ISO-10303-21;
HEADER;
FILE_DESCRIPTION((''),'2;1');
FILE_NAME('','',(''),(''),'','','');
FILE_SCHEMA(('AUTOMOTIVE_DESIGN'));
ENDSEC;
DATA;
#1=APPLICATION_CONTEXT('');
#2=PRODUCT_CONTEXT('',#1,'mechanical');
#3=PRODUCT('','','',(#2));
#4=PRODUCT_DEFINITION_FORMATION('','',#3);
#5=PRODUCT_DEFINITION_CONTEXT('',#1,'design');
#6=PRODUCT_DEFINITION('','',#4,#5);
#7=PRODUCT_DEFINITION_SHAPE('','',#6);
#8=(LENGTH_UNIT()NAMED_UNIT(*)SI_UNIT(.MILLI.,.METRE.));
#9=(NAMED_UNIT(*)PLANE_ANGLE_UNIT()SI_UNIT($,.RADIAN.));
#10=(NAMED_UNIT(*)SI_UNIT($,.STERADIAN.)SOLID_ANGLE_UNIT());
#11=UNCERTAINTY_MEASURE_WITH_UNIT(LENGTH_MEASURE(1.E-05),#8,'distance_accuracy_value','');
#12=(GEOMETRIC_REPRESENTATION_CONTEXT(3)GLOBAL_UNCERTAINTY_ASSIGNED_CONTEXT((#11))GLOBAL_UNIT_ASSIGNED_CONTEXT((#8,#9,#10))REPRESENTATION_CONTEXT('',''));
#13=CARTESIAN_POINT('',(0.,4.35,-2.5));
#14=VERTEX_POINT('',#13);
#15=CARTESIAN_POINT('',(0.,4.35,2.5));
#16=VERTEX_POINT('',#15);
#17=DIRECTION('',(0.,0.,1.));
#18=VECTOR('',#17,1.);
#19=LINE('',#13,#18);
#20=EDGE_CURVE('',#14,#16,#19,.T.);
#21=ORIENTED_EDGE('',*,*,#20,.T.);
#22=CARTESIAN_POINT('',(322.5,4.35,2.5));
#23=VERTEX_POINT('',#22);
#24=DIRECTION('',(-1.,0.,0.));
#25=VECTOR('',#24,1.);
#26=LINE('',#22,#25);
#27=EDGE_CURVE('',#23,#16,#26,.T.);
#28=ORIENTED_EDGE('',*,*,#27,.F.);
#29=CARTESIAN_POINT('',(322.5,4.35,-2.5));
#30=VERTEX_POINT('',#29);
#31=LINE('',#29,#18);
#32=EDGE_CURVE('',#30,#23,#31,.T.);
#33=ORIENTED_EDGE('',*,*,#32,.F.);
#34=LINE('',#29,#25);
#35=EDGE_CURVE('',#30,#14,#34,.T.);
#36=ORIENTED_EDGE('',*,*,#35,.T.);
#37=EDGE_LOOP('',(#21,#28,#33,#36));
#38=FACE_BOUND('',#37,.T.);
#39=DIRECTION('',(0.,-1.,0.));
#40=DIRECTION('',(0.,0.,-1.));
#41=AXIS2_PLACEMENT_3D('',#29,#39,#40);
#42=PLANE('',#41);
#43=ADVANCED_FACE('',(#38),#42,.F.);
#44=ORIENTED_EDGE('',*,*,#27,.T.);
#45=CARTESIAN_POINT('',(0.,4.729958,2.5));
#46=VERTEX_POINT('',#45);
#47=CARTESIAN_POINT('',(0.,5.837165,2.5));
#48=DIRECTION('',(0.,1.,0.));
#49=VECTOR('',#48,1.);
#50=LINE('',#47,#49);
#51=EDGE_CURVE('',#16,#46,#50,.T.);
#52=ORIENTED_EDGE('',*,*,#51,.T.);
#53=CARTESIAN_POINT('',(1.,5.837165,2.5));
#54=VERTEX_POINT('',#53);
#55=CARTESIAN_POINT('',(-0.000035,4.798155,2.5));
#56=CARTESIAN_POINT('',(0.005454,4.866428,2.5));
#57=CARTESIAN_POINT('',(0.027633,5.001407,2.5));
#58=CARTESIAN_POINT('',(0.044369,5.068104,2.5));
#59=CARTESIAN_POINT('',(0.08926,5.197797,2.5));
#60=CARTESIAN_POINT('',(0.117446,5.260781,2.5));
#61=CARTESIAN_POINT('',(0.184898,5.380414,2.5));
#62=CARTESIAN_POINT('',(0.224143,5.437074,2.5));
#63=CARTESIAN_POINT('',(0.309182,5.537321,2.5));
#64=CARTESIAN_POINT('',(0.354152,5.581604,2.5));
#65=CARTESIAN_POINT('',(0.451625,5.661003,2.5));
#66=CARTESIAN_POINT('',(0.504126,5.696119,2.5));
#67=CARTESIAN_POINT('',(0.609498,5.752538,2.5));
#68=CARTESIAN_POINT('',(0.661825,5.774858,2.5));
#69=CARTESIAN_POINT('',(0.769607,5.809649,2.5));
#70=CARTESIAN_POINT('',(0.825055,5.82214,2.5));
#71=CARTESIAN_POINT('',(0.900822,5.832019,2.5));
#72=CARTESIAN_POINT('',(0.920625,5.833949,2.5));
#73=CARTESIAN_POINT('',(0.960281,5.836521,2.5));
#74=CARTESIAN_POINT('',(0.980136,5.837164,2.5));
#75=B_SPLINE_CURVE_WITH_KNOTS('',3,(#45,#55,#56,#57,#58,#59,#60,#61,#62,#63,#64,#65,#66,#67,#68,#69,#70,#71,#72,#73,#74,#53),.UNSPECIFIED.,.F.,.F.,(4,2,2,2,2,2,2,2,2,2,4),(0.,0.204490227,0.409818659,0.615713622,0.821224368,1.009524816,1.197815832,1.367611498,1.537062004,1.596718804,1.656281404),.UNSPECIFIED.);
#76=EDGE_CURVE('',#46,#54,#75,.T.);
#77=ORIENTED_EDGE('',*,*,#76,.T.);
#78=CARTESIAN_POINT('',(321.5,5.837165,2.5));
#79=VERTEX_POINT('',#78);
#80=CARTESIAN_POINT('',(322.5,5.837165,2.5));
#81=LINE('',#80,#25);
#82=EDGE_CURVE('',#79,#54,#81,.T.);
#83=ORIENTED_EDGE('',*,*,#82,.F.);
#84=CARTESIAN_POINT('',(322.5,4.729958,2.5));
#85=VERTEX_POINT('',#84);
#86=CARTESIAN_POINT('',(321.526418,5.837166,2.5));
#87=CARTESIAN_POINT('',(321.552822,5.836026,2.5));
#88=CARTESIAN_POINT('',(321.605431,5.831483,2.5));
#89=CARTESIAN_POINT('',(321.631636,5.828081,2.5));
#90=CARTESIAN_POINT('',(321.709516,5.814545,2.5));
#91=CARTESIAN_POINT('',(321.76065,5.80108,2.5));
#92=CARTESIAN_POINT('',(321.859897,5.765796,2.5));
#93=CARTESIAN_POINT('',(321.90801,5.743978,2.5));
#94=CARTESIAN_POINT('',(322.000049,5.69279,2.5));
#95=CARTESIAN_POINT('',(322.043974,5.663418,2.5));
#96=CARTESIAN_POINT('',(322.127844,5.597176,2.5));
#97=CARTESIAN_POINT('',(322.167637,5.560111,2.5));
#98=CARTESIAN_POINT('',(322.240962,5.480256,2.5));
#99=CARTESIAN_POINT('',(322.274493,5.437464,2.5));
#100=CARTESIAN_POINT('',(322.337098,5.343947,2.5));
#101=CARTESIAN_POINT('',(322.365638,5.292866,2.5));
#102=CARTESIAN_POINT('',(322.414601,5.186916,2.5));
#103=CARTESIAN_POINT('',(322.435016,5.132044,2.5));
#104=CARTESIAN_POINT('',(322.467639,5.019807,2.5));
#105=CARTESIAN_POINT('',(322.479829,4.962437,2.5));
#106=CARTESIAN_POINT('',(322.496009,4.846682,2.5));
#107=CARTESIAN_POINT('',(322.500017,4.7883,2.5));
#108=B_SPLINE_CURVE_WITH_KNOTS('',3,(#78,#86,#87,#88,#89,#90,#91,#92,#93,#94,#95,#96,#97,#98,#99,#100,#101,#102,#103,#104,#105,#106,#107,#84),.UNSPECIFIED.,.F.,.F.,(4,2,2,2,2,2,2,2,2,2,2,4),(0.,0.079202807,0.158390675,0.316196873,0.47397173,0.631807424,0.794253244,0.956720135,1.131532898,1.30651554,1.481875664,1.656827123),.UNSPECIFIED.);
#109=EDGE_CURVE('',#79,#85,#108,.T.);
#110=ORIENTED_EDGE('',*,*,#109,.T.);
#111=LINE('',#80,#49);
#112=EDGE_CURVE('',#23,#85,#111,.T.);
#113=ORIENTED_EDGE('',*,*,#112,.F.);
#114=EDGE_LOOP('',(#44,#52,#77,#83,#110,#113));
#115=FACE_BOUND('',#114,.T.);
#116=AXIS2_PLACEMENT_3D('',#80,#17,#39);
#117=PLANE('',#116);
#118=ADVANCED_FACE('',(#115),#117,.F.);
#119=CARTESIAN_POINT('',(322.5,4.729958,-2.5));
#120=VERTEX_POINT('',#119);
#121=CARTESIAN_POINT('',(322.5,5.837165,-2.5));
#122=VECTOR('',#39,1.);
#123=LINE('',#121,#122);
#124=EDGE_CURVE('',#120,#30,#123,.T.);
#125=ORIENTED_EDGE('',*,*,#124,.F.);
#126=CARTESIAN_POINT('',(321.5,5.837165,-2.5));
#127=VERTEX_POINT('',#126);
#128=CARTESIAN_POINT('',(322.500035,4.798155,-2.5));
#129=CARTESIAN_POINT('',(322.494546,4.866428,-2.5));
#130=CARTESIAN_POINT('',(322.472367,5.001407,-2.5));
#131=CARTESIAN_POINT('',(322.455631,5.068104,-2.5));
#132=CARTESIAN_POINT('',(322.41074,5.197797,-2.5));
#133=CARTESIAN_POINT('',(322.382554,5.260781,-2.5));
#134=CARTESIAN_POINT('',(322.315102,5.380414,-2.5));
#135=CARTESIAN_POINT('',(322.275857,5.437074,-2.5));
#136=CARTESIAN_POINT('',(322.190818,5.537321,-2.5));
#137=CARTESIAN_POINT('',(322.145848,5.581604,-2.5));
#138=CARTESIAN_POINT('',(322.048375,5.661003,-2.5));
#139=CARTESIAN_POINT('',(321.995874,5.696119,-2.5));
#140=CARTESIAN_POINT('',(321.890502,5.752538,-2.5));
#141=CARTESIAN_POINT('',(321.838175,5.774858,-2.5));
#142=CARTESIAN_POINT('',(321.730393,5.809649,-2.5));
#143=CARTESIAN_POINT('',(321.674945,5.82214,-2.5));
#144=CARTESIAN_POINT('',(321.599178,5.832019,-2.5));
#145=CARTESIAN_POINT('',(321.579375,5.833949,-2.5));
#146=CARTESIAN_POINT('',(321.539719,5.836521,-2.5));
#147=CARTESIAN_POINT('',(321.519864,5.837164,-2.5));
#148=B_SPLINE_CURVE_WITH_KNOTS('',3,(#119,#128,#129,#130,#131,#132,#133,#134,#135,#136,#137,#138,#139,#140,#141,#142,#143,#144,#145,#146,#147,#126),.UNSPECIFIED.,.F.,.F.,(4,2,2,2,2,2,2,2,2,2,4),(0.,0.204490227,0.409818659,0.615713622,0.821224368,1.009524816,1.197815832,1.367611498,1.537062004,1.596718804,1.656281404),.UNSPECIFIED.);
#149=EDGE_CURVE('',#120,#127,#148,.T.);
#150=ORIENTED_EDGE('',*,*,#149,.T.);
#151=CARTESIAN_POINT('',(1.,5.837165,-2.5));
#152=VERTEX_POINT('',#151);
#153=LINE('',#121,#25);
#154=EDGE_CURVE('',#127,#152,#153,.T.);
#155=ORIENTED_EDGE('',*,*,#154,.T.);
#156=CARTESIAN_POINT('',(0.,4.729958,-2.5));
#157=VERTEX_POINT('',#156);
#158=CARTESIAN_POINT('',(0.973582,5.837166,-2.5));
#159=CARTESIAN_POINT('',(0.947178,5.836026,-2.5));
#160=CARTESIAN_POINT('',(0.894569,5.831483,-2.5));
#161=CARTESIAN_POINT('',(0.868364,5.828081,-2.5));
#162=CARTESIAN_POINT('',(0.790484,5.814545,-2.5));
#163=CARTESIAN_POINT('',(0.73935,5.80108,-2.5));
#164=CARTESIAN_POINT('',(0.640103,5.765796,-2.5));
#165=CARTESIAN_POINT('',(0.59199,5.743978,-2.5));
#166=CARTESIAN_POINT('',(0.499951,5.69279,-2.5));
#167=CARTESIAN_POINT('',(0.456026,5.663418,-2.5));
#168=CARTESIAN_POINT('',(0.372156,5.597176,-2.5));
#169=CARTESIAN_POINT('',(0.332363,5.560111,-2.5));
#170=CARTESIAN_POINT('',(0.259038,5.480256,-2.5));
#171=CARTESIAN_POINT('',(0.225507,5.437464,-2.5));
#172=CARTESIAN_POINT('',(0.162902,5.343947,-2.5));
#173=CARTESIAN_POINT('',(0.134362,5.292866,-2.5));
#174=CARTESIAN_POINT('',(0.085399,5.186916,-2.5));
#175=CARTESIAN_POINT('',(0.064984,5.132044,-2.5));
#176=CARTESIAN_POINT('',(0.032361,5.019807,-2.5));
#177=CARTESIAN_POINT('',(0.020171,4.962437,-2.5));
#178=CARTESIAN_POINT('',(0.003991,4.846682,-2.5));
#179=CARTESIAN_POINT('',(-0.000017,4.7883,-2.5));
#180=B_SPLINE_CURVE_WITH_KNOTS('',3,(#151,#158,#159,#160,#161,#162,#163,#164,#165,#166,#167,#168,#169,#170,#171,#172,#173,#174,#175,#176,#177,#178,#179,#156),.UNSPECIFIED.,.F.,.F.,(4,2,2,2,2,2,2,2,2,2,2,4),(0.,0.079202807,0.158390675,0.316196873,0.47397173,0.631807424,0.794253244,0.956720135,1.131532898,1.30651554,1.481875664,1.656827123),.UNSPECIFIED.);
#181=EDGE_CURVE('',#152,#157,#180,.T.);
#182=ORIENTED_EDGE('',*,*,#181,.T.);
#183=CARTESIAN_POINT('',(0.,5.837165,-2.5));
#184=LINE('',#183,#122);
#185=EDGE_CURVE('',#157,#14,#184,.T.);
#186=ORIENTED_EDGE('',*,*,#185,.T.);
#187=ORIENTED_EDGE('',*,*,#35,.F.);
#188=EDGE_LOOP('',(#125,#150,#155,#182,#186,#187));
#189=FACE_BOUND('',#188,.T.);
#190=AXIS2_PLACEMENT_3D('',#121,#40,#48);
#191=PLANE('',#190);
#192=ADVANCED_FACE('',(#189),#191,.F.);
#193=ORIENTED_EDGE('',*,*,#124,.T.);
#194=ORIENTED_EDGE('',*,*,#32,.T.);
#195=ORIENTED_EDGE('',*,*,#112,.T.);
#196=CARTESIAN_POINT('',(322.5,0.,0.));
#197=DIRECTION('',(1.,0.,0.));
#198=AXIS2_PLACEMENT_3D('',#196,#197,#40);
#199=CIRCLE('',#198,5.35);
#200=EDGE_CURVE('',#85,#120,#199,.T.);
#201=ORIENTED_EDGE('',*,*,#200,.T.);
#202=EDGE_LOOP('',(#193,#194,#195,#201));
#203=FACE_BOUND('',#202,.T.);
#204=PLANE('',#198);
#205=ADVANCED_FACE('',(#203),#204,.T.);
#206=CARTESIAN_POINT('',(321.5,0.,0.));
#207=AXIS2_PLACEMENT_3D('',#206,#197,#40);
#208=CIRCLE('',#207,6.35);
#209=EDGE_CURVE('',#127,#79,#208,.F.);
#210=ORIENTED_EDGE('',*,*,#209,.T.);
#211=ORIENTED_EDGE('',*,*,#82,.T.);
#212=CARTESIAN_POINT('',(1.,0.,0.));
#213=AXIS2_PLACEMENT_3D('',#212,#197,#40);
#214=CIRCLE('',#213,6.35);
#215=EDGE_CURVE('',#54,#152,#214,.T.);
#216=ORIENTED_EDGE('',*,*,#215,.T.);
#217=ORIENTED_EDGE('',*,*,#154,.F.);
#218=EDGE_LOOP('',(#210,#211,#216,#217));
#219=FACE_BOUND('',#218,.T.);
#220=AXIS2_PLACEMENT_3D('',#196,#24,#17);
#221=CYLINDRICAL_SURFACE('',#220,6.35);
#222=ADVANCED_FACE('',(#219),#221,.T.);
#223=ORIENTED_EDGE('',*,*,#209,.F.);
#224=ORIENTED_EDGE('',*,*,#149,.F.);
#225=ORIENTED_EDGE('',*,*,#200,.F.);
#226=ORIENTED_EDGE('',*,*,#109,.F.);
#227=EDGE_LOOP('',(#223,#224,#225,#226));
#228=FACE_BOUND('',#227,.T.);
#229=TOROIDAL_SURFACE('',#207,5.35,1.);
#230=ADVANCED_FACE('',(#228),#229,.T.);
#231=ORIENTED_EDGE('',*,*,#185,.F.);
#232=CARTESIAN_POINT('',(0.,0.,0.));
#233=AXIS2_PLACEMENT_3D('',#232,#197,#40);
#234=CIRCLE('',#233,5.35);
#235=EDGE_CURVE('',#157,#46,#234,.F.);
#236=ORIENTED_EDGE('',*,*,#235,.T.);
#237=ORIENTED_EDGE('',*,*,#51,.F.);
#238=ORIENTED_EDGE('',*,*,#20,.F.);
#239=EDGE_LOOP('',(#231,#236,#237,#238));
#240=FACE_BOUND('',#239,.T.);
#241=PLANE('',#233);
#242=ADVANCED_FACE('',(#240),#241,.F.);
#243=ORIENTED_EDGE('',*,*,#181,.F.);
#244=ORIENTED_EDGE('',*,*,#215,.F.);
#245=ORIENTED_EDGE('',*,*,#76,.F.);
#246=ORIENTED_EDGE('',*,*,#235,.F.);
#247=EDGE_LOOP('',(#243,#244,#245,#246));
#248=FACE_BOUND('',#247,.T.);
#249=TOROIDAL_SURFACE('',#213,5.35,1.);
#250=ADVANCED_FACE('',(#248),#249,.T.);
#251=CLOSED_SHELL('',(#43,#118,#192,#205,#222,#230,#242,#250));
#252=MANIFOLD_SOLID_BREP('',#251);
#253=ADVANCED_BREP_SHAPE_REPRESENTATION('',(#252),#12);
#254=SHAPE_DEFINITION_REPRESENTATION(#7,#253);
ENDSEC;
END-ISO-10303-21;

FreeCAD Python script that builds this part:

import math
import FreeCAD as App
import Part
import Sketcher
from FreeCAD import Vector


def edges_at(feature, points):
    """Names of the edges that pass closest to the given points."""
    edges = feature.Shape.Edges
    near = lambda p: min(range(len(edges)), key=lambda i: edges[i].distToShape(Part.Vertex(*p))[0])
    return sorted({f"Edge{near(p) + 1}" for p in points})

doc = App.newDocument("Part")
body = doc.addObject("PartDesign::Body", "Body")

# Sketch on YZ plane
sketch1 = doc.addObject("Sketcher::SketchObject", "Sketch")
body.addObject(sketch1)
sketch1.AttachmentSupport = (doc.YZ_Plane, [""])
sketch1.MapMode = "FlatFace"
sketch1.addGeometry(Part.LineSegment(Vector(5.8, -2.5, 0), Vector(4.3, -2.5, 0)), False)
sketch1.addGeometry(Part.LineSegment(Vector(4.3, -2.5, 0), Vector(4.3, 2.5, 0)), False)
sketch1.addGeometry(Part.LineSegment(Vector(4.3, 2.5, 0), Vector(5.8, 2.5, 0)), False)
sketch1.addGeometry(Part.ArcOfCircle(Part.Circle(Vector(0, 0, 0), Vector(0, 0, 1), 6.3), math.radians(23), math.radians(337)), False)
sketch1.addConstraint(Sketcher.Constraint("Coincident", 0, 2, 1, 1))
sketch1.addConstraint(Sketcher.Constraint("Coincident", 1, 2, 2, 1))
sketch1.addConstraint(Sketcher.Constraint("Coincident", 2, 2, 3, 1))
sketch1.addConstraint(Sketcher.Constraint("Coincident", 3, 2, 0, 1))
sketch1.addConstraint(Sketcher.Constraint("Horizontal", 0))
sketch1.addConstraint(Sketcher.Constraint("Vertical", 1))
sketch1.addConstraint(Sketcher.Constraint("Horizontal", 2))
sketch1.addConstraint(Sketcher.Constraint("Coincident", 3, 3, -1, 1))
sketch1.addConstraint(Sketcher.Constraint("Vertical", 2, 2, 3, 2))
sketch1.addConstraint(Sketcher.Constraint("DistanceY", 1, 1, 1, 2, 5.0))
sketch1.addConstraint(Sketcher.Constraint("Radius", 3, 6.35))
sketch1.addConstraint(Sketcher.Constraint("DistanceX", -1, 1, 0, 2, 4.35))
pad1 = doc.addObject("PartDesign::Pad", "Pad")
body.addObject(pad1)
pad1.Profile = sketch1
pad1.Length = 322.5
doc.recompute()

fillet = doc.addObject("PartDesign::Fillet", "Fillet")
body.addObject(fillet)
fillet.Base = (pad1, edges_at(pad1, [(0, -6.35, 0), (322.5, -6.35, 0)]))
fillet.Radius = 1

doc.recompute()
